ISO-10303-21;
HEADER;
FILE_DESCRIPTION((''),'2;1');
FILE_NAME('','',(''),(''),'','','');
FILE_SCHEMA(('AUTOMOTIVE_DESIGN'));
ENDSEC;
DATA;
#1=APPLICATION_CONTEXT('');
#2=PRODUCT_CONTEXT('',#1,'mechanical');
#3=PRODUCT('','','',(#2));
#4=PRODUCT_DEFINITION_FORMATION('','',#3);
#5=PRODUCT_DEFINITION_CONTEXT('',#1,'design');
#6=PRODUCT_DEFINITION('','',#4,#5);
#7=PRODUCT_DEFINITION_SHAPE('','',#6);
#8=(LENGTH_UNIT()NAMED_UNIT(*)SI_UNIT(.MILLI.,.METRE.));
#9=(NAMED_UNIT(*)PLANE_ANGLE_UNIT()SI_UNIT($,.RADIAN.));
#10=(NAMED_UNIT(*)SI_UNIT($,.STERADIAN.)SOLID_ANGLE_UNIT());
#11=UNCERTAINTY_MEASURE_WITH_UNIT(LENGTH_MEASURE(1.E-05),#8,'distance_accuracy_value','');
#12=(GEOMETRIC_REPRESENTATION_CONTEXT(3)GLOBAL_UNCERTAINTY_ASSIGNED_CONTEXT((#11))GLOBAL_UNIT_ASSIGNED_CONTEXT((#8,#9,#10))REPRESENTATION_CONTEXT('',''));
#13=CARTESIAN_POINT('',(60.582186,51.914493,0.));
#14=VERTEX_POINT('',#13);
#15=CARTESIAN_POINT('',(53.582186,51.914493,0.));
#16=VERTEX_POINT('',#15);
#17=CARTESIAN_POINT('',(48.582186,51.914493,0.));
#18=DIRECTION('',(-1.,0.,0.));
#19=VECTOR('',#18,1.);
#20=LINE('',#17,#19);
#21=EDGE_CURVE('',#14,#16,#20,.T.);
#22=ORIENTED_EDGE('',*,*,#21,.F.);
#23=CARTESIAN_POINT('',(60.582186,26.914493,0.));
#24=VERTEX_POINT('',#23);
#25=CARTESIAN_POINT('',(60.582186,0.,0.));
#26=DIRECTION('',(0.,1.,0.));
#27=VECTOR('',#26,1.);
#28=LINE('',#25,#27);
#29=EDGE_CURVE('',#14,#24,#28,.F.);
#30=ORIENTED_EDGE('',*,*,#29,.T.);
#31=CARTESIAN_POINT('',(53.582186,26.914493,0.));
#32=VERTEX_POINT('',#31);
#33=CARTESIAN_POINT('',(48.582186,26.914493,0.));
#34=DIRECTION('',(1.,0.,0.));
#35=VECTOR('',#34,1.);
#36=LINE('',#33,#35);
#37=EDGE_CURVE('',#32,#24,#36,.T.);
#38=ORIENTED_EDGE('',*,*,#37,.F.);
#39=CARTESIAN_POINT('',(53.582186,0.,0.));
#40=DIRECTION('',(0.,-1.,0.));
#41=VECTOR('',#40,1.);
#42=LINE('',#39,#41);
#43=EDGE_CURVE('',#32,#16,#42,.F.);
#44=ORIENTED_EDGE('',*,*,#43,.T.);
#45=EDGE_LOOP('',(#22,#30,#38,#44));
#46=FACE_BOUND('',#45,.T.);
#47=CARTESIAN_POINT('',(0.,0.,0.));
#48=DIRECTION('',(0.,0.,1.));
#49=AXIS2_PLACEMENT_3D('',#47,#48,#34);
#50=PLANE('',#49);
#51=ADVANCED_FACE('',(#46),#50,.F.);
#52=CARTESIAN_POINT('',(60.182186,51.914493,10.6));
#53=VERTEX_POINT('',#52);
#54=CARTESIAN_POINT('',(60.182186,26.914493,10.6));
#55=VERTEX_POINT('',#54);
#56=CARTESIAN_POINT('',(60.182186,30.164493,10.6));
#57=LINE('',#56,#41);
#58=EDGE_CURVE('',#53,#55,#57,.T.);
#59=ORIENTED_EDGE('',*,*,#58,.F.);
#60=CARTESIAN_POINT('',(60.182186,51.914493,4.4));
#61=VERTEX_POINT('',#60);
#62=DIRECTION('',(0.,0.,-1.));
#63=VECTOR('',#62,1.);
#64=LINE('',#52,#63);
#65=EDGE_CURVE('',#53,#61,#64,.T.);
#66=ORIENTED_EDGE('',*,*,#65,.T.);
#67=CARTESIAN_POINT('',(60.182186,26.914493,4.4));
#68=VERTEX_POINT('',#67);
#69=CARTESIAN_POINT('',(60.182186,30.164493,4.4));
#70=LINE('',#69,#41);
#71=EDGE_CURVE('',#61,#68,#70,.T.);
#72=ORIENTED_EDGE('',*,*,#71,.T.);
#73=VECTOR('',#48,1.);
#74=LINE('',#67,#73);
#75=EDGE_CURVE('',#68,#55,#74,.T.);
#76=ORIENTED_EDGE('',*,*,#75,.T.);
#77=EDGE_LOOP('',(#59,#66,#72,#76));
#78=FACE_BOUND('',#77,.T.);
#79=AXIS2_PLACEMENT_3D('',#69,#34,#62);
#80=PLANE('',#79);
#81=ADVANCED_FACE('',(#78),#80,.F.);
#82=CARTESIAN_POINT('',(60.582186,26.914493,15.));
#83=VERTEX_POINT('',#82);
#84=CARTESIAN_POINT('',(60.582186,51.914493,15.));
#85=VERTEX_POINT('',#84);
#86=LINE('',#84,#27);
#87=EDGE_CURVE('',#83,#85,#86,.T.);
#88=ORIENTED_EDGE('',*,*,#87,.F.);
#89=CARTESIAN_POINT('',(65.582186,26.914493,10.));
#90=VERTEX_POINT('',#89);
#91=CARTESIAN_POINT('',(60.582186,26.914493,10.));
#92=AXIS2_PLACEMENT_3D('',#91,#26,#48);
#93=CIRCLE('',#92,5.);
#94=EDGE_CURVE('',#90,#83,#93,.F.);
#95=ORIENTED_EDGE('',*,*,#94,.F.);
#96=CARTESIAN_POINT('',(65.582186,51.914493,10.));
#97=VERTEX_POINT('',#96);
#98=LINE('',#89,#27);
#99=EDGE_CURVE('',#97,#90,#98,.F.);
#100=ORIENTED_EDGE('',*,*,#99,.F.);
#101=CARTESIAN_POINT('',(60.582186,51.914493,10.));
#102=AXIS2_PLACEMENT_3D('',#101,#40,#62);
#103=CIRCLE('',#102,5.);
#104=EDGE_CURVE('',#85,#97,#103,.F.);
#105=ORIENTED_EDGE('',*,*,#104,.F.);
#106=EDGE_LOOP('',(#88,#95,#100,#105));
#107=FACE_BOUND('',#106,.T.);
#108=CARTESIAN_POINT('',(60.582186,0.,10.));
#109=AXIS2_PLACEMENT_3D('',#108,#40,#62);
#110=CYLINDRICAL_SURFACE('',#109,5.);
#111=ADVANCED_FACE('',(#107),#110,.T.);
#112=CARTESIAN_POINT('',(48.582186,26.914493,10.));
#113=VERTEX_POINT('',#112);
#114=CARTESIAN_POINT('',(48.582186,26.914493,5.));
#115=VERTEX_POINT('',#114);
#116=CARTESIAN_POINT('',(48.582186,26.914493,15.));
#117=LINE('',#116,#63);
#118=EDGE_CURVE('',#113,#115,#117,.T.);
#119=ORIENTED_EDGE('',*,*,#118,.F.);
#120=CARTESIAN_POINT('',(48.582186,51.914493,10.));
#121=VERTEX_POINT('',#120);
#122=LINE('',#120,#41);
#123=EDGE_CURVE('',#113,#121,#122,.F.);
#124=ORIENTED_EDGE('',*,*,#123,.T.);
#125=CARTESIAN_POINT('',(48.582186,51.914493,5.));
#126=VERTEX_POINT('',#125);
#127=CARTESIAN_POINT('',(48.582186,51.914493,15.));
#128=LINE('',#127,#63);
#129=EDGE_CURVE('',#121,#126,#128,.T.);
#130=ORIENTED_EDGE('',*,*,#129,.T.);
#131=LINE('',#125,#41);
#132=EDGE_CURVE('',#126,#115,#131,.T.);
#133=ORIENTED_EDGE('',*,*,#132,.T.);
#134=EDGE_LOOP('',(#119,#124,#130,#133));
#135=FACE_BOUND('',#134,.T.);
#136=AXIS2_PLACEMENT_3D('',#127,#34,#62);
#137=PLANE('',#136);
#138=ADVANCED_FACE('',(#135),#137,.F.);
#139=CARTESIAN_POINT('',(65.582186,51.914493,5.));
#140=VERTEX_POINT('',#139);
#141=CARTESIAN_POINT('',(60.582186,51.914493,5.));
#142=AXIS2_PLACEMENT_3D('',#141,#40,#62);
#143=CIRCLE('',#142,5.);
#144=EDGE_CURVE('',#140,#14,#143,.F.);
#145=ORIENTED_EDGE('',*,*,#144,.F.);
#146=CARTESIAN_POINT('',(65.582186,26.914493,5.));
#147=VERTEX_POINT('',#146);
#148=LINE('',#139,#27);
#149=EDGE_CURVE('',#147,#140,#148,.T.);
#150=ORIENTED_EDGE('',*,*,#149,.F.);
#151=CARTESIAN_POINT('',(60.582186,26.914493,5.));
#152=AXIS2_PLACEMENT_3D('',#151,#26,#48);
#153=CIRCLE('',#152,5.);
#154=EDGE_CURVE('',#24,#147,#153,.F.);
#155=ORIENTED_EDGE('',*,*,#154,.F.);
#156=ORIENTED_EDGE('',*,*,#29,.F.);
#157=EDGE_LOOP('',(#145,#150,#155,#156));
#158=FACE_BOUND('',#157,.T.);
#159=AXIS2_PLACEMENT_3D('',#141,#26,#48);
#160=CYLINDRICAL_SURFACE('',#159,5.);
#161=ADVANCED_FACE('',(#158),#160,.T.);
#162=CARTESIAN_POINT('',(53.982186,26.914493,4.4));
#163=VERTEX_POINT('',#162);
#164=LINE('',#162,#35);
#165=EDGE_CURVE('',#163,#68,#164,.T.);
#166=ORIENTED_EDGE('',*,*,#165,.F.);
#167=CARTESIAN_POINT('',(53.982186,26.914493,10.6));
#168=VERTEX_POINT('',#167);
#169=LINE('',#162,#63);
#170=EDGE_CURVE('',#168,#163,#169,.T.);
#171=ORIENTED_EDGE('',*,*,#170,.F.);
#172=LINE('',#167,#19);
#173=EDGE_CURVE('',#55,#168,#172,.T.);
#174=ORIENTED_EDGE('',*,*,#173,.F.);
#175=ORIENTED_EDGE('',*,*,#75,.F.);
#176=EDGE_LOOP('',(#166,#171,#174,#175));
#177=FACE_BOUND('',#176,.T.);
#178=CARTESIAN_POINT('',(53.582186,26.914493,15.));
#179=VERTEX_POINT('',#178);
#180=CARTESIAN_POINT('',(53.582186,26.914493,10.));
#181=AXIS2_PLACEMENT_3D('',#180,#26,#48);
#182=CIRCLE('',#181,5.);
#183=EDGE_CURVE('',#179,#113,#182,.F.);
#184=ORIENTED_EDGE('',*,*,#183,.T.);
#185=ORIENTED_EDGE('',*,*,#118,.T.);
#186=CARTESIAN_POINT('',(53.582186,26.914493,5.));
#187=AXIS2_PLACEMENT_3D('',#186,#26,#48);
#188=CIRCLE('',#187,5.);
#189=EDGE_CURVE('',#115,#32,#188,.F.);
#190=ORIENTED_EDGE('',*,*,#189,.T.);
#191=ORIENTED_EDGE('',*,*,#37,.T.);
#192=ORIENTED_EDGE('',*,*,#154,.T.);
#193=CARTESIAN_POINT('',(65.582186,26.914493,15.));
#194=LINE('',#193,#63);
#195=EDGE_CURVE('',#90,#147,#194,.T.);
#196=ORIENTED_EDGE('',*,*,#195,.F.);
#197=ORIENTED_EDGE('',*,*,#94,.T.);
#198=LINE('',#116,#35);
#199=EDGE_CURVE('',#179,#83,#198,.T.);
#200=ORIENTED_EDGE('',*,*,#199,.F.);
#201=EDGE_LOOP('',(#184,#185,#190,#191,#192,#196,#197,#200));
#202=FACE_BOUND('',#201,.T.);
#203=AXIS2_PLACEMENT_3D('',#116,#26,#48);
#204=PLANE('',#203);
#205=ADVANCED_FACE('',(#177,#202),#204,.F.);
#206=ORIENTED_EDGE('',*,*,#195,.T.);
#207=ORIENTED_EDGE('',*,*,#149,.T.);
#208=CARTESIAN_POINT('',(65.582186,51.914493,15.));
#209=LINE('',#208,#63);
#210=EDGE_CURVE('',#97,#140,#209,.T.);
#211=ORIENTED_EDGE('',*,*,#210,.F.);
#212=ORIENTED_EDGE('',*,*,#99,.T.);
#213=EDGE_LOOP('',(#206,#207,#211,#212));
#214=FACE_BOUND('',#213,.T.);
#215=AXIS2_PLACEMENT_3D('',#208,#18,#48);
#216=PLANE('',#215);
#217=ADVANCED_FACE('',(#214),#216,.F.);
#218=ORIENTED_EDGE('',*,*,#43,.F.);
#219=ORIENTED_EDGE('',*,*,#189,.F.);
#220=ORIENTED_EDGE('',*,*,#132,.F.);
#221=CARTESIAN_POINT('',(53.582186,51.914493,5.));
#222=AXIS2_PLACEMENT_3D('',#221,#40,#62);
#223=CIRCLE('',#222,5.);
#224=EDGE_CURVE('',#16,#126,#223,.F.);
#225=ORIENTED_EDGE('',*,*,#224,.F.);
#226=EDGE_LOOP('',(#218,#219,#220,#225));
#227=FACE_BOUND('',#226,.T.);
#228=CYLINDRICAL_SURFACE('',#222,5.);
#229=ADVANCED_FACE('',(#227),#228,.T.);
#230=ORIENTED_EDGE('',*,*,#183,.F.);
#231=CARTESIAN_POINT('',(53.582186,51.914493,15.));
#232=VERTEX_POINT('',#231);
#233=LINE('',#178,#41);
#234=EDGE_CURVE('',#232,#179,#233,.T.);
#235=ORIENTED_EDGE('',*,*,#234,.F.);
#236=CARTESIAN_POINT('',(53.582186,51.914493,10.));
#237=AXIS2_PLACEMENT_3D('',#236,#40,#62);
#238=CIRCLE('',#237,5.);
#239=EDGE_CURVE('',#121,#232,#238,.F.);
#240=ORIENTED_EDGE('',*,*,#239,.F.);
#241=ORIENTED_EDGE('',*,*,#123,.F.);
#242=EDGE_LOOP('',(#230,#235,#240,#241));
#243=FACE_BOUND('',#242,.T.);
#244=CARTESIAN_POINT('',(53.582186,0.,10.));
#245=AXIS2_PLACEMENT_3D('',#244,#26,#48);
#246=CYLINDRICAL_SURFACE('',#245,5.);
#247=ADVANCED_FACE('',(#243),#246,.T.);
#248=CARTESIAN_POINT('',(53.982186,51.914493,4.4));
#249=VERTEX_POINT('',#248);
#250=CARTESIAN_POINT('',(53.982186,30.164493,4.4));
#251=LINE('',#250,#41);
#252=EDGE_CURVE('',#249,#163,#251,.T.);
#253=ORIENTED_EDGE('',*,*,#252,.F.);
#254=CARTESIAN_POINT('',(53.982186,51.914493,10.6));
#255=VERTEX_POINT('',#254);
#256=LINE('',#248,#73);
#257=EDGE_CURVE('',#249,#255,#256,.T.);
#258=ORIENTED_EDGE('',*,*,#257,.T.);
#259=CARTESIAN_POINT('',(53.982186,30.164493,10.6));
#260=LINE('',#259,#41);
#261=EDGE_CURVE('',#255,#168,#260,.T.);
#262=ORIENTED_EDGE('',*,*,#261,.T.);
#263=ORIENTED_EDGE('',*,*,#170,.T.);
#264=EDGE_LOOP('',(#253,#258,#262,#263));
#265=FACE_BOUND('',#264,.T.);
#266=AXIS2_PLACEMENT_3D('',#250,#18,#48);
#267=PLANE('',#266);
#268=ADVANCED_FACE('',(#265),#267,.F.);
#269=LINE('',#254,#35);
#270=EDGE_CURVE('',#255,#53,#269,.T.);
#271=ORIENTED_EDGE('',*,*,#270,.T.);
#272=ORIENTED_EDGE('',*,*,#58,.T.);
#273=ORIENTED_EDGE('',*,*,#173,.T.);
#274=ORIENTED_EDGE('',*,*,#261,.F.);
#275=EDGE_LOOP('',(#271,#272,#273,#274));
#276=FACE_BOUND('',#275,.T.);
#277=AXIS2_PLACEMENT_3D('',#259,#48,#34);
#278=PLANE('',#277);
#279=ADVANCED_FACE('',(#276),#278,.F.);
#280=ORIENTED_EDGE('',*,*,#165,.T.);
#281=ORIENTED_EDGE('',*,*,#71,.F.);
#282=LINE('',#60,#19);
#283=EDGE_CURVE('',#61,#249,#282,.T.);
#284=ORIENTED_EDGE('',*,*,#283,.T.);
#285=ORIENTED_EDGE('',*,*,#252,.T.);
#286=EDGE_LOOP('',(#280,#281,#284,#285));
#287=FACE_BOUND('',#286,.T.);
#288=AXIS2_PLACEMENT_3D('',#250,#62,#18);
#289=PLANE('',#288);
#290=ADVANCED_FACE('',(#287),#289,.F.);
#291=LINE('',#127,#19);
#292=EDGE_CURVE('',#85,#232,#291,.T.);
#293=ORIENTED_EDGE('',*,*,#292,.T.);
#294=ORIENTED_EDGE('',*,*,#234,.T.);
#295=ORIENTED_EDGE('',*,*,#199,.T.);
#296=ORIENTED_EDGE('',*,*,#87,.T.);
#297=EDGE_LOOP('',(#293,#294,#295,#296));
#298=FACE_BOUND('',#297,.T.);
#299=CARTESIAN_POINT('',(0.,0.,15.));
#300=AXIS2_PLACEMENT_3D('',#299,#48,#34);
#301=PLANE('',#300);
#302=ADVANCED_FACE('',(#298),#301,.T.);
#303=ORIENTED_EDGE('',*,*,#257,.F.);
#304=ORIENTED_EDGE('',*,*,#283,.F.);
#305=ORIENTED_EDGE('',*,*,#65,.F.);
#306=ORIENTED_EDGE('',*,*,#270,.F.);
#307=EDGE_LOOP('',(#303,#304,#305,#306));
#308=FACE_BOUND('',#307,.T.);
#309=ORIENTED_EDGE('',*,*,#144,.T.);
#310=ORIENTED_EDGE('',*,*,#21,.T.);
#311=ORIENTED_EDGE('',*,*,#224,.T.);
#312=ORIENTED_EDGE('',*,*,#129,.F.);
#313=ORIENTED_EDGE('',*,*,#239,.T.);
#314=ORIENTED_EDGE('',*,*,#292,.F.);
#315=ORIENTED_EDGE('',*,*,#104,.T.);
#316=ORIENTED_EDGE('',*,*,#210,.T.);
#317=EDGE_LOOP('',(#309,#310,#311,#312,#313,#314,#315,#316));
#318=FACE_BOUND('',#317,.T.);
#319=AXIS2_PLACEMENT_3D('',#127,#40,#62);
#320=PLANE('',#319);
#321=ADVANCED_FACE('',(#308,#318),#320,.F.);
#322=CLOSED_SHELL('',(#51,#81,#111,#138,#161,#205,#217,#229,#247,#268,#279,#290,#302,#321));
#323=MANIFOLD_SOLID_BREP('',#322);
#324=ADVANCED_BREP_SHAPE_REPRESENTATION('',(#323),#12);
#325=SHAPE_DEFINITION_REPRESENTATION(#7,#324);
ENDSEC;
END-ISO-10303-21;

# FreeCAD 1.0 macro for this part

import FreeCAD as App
import Part
import Sketcher
Q = App.Units.Quantity


def edges_at(feature, points):
    """Names of the edges that pass closest to the given points."""
    edges = feature.Shape.Edges
    near = lambda p: min(range(len(edges)), key=lambda i: edges[i].distToShape(Part.Vertex(*p))[0])
    return sorted({f"Edge{near(p) + 1}" for p in points})


def add_polygon(sketch, points):
    """Adds a closed chain of lines whose ends are joined by coincident constraints."""
    first, n = sketch.GeometryCount, len(points)
    for a, b in zip(points, points[1:] + points[:1]):
        sketch.addGeometry(Part.LineSegment(App.Vector(*a, 0), App.Vector(*b, 0)), False)
    for i in range(n):
        sketch.addConstraint(Sketcher.Constraint("Coincident", first + i, 2, first + (i + 1) % n, 1))

doc = App.newDocument("Part")
body = doc.addObject("PartDesign::Body", "Body")

sketch1 = body.newObject("Sketcher::SketchObject", "Sketch")
sketch1.AttachmentSupport = (doc.getObject("XY_Plane"), [""])
sketch1.MapMode = "FlatFace"
add_polygon(sketch1, [(49, 52), (49, 27), (66, 27), (66, 52)])
sketch1.addConstraint([
    Sketcher.Constraint("Vertical", 0),
    Sketcher.Constraint("Horizontal", 1),
    Sketcher.Constraint("Vertical", 2),
    Sketcher.Constraint("Horizontal", 3),
    Sketcher.Constraint("DistanceX", 1, 1, 1, 2, Q("17 mm")),
    Sketcher.Constraint("DistanceY", 0, 2, 0, 1, Q("25 mm")),
    Sketcher.Constraint("DistanceX", -1, 1, 0, 2, Q("48.582186 mm")),
    Sketcher.Constraint("DistanceY", -1, 1, 0, 2, Q("26.914493 mm")),
])
pad1 = body.newObject("PartDesign::Pad", "Pad")
pad1.Profile = sketch1
pad1.Length = 15

sketch2 = body.newObject("Sketcher::SketchObject", "Sketch001")
sketch2.AttachmentSupport = (doc.getObject("XZ_Plane"), [""])
sketch2.MapMode = "FlatFace"
sketch2.AttachmentOffset = App.Placement(App.Vector(0, 0, -26.914493), App.Rotation())
add_polygon(sketch2, [(54, 11), (54, 4), (60, 4), (60, 11)])
sketch2.addConstraint([
    Sketcher.Constraint("Vertical", 0),
    Sketcher.Constraint("Horizontal", 1),
    Sketcher.Constraint("Vertical", 2),
    Sketcher.Constraint("Horizontal", 3),
    Sketcher.Constraint("Equal", 3, 0),
    Sketcher.Constraint("DistanceX", 1, 1, 1, 2, Q("6.2 mm")),
    Sketcher.Constraint("DistanceY", -1, 1, 0, 2, Q("4.4 mm")),
    Sketcher.Constraint("DistanceX", -1, 1, 0, 2, Q("53.982186 mm")),
])
pocket1 = body.newObject("PartDesign::Pocket", "Pocket")
pocket1.Profile = sketch2
pocket1.Length = 3.25

sketch3 = body.newObject("Sketcher::SketchObject", "Sketch002")
sketch3.AttachmentSupport = (doc.getObject("XZ_Plane"), [""])
sketch3.MapMode = "FlatFace"
sketch3.AttachmentOffset = App.Placement(App.Vector(0, 0, -51.914493), App.Rotation())
add_polygon(sketch3, [(54, 4), (54, 11), (60, 11), (60, 4)])
sketch3.addConstraint([
    Sketcher.Constraint("Vertical", 0),
    Sketcher.Constraint("Horizontal", 1),
    Sketcher.Constraint("Vertical", 2),
    Sketcher.Constraint("Horizontal", 3),
    Sketcher.Constraint("Equal", 3, 0),
    Sketcher.Constraint("DistanceX", 1, 1, 1, 2, Q("6.2 mm")),
    Sketcher.Constraint("DistanceY", -1, 1, 0, 2, Q("10.6 mm")),
    Sketcher.Constraint("DistanceX", -1, 1, 0, 2, Q("53.982186 mm")),
])
pocket2 = body.newObject("PartDesign::Pocket", "Pocket001")
pocket2.Profile = sketch3
pocket2.Length = 3.25
pocket2.Reversed = True
doc.recompute()

fillet = body.newObject("PartDesign::Fillet", "Fillet")
fillet.Base = (pocket2, edges_at(pocket2, [
    (48.582, 39.414, 15),
    (65.582, 39.414, 15),
    (48.582, 39.414, 0),
    (65.582, 39.414, 0),
]))
fillet.Radius = 5

sketch4 = body.newObject("Sketcher::SketchObject", "Sketch003")
sketch4.AttachmentSupport = (doc.getObject("XZ_Plane"), [""])
sketch4.MapMode = "FlatFace"
sketch4.AttachmentOffset = App.Placement(App.Vector(0, 0, -48.664493), App.Rotation())
add_polygon(sketch4, [(54, 4), (54, 11), (60, 11), (60, 4)])
sketch4.addConstraint([
    Sketcher.Constraint("Vertical", 0),
    Sketcher.Constraint("Horizontal", 1),
    Sketcher.Constraint("Vertical", 2),
    Sketcher.Constraint("Horizontal", 3),
    Sketcher.Constraint("Equal", 3, 0),
    Sketcher.Constraint("DistanceX", 1, 1, 1, 2, Q("6.2 mm")),
    Sketcher.Constraint("DistanceY", -1, 1, 0, 2, Q("10.6 mm")),
    Sketcher.Constraint("DistanceX", -1, 1, 0, 2, Q("53.982186 mm")),
])
pocket3 = body.newObject("PartDesign::Pocket", "Pocket002")
pocket3.Profile = sketch4
pocket3.Type = "ThroughAll"
pocket3.Reversed = True

doc.recompute()
